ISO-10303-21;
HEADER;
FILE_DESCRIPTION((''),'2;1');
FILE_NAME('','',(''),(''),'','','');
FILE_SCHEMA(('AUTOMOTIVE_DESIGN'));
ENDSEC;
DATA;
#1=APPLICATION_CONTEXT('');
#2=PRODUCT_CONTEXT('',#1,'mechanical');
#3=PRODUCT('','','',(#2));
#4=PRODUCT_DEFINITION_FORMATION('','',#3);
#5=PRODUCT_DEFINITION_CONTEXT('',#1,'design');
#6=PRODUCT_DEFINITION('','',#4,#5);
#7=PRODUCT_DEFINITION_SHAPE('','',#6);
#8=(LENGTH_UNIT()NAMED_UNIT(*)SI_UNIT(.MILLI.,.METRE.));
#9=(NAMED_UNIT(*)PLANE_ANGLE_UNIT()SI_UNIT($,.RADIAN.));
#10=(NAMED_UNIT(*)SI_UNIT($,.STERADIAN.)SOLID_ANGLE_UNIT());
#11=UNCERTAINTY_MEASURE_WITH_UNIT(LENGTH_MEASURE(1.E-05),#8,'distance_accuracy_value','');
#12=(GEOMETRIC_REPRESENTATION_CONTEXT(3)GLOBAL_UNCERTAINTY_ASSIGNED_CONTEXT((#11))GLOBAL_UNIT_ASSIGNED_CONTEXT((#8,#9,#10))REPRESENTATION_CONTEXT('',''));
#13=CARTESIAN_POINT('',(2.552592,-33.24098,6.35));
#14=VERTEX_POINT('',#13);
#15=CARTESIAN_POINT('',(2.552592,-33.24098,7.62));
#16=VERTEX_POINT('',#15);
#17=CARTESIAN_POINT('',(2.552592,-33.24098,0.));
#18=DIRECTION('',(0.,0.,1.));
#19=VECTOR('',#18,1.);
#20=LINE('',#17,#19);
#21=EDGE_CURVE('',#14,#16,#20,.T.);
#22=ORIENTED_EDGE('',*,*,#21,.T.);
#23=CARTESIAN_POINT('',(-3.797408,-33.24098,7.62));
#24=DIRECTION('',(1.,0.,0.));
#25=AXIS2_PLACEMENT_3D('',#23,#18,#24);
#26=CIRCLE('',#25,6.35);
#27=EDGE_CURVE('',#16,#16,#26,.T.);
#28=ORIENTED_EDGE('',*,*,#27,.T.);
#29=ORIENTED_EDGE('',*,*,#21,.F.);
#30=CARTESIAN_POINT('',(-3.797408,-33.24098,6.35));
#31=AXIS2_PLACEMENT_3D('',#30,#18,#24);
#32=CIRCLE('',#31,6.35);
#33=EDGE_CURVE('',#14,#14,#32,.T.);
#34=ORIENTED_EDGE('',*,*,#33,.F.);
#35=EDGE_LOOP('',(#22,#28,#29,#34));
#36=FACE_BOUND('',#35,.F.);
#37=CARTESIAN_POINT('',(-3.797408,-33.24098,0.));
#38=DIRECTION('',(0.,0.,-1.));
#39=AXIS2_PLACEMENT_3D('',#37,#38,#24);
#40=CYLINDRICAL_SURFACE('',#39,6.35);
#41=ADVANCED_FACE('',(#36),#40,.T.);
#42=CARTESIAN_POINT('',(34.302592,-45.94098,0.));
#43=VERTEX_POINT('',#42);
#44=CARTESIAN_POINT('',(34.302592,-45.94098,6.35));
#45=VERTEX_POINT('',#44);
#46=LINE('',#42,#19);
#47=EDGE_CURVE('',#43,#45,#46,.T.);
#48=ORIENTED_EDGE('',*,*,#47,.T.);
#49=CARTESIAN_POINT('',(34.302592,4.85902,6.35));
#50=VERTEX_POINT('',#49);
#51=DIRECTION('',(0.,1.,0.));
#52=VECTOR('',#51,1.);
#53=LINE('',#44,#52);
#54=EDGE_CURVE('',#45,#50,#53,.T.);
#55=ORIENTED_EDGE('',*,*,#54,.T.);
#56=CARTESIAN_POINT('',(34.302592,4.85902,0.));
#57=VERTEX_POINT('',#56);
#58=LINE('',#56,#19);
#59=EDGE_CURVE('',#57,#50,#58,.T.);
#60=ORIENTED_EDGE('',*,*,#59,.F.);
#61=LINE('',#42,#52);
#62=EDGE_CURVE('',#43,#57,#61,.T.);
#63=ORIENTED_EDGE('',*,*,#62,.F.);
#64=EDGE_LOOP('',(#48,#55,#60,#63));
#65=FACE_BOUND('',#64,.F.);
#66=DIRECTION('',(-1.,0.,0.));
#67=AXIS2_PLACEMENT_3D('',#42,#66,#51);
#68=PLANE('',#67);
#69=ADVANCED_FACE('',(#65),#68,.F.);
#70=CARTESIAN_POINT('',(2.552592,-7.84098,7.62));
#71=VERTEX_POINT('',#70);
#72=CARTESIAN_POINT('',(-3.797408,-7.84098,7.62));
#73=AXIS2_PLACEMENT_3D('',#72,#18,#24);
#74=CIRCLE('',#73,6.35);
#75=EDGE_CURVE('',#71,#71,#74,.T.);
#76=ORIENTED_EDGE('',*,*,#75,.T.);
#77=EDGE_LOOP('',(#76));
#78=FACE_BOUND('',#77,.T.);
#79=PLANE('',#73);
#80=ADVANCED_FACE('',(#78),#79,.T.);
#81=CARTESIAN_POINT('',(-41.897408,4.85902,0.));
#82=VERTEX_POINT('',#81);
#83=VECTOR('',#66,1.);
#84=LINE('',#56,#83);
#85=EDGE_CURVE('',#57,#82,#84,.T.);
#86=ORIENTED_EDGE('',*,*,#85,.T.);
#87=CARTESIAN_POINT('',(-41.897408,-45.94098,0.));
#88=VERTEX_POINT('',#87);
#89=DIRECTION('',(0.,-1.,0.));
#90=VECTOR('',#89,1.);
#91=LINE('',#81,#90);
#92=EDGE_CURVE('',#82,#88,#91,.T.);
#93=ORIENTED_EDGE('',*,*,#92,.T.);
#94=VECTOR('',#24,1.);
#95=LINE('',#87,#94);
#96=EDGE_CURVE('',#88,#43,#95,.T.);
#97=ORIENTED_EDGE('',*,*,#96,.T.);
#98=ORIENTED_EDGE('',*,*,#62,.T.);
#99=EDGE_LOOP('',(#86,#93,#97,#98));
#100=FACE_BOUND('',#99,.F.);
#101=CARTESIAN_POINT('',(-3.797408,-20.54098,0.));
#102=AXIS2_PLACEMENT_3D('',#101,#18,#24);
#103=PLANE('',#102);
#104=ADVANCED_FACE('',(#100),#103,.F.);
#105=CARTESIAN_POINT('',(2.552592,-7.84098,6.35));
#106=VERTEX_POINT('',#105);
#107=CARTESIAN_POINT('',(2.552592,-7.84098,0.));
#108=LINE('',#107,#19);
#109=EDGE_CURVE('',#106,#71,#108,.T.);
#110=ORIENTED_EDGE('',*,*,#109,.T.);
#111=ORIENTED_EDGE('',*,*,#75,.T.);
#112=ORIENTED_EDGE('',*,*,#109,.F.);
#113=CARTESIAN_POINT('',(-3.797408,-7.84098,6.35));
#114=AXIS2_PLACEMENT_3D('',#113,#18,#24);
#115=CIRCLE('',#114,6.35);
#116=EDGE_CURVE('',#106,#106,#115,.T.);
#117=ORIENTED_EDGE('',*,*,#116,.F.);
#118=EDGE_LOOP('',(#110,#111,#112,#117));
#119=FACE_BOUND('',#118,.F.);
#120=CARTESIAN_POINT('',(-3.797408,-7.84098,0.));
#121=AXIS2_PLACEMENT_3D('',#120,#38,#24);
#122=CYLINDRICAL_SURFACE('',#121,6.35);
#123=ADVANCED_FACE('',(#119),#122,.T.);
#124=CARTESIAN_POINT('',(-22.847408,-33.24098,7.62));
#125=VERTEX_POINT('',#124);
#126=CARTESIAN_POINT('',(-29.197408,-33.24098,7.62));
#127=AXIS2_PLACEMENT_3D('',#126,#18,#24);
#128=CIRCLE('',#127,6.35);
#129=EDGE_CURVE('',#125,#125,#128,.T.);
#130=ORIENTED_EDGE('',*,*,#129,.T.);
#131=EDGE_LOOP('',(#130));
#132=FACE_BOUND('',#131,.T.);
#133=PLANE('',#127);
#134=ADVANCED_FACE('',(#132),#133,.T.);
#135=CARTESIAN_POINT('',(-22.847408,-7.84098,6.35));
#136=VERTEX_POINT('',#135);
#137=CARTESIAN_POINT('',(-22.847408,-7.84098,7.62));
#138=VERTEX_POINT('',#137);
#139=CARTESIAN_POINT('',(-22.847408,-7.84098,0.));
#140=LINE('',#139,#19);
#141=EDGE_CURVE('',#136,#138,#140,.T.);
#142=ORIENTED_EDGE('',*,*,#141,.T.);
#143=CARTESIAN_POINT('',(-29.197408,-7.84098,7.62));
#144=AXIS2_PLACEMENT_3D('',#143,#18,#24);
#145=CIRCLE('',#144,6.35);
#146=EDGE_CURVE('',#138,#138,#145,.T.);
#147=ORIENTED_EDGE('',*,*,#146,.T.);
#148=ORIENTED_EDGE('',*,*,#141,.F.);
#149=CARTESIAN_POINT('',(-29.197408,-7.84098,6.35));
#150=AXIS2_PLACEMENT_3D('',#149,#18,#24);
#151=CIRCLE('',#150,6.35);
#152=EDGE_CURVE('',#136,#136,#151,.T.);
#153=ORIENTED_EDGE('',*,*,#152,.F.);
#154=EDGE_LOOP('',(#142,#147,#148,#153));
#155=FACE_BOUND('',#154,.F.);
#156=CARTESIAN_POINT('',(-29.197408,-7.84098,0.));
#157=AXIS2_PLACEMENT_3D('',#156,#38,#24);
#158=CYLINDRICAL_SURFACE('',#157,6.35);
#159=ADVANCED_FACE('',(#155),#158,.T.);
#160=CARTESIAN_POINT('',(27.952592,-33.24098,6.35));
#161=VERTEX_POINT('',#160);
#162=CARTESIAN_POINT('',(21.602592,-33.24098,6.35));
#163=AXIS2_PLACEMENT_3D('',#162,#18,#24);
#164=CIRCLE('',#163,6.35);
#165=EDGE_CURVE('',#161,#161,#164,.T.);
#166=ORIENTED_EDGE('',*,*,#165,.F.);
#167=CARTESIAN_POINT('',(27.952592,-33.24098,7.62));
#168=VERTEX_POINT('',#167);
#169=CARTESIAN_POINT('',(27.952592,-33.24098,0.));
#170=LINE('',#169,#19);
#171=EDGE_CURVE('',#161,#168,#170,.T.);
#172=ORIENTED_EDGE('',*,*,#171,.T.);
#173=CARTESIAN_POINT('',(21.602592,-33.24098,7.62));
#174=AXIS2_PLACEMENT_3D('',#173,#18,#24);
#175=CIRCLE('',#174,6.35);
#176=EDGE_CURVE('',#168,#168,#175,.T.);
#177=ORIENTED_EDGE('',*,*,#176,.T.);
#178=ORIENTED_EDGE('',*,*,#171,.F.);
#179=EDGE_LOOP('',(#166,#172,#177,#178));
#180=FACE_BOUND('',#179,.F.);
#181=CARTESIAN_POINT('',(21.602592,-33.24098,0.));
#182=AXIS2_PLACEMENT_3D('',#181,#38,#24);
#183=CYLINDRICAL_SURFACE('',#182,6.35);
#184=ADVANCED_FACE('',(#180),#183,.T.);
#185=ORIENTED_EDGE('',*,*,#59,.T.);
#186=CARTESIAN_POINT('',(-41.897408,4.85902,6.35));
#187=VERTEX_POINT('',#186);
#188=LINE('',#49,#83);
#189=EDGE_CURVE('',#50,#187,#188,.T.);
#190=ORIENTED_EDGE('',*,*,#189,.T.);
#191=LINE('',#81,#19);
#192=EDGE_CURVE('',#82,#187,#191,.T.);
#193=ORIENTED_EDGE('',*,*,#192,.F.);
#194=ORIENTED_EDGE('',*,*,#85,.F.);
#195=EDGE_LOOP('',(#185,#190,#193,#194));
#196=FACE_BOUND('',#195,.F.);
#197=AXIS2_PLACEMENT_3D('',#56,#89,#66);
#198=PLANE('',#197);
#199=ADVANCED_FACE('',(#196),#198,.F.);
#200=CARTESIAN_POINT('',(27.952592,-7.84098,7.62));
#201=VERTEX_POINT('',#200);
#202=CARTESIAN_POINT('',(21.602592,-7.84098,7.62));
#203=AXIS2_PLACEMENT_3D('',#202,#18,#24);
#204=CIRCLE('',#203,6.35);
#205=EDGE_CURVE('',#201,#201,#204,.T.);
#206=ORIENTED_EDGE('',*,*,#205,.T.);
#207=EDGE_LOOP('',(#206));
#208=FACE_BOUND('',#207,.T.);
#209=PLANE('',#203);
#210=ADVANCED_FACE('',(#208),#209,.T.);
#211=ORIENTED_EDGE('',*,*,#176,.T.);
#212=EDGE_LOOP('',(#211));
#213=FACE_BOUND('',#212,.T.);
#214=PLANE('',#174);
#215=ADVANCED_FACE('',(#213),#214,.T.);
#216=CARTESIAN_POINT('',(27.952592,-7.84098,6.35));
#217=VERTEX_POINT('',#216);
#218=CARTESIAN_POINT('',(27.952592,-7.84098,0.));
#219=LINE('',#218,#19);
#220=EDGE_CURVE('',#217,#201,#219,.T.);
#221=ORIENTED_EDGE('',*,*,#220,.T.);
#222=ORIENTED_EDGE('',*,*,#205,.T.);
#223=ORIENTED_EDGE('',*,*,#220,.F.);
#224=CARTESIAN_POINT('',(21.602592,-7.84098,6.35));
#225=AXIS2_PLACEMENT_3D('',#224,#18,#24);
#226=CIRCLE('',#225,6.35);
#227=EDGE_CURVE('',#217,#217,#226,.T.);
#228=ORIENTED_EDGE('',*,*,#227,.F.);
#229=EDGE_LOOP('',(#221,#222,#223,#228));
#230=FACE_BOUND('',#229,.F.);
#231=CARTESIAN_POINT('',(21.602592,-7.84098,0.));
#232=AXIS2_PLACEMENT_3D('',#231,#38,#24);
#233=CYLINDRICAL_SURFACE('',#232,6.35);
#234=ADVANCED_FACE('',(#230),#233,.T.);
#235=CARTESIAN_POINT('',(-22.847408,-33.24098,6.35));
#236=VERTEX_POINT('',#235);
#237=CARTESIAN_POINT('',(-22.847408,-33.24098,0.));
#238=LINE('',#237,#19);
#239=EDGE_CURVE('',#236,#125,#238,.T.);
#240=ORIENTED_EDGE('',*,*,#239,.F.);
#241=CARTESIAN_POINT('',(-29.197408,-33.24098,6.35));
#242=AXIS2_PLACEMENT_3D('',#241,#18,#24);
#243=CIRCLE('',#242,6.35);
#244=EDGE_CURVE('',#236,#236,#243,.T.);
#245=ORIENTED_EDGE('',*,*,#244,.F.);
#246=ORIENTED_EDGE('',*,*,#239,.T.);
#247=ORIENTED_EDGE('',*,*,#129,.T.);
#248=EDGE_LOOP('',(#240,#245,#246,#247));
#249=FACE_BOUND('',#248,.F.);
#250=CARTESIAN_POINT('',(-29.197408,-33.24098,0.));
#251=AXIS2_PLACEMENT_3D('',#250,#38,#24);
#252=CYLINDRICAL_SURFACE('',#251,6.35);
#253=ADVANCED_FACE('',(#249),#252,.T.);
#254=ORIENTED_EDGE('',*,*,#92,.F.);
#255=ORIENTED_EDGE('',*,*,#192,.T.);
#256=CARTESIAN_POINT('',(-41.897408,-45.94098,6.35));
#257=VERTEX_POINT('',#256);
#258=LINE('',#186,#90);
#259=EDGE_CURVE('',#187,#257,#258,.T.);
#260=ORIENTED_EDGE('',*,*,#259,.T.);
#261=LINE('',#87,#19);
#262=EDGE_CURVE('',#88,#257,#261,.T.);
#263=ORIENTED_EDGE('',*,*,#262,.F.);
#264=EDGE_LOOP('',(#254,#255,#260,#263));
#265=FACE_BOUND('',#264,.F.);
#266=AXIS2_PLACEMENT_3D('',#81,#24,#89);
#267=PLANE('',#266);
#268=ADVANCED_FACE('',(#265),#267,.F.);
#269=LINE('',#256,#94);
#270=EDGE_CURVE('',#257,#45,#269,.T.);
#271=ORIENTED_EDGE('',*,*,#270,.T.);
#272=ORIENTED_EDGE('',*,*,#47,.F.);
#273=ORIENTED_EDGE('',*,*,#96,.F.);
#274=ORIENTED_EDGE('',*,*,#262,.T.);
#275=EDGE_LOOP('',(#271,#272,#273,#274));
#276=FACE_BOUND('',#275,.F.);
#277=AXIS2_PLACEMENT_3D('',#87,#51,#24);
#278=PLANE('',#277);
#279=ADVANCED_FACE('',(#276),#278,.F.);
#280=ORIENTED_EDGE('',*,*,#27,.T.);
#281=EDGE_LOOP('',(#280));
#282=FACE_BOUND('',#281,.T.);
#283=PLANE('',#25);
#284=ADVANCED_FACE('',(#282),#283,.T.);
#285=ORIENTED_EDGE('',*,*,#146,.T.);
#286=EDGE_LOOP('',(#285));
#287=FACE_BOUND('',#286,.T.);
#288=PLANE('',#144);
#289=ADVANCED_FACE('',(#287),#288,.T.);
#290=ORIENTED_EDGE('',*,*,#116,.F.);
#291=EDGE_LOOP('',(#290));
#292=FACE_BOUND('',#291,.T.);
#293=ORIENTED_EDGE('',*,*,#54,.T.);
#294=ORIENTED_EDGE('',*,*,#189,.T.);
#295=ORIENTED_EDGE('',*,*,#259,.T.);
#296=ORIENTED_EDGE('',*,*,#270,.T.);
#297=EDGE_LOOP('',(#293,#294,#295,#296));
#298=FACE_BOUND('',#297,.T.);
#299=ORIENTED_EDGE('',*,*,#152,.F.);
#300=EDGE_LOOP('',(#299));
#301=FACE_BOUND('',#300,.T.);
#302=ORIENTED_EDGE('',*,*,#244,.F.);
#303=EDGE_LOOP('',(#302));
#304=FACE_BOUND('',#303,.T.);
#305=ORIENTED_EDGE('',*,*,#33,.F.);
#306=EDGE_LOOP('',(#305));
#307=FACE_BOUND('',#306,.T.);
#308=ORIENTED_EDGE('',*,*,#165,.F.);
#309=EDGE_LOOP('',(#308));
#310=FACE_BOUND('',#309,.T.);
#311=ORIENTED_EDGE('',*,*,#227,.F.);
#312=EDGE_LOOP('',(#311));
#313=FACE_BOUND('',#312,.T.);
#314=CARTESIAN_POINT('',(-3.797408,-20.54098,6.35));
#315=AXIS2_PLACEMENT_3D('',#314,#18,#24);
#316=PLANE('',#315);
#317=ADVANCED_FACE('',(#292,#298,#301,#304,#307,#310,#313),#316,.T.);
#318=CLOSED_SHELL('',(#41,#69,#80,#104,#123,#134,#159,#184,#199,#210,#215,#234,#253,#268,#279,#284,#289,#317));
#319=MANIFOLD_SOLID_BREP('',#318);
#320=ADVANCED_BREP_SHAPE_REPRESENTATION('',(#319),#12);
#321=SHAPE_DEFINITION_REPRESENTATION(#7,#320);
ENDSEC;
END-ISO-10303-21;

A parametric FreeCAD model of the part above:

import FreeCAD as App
import Part
import Sketcher

V = App.Vector
Q = App.Units.Quantity

doc = App.newDocument("Part")
body = doc.addObject("PartDesign::Body", "Body")

sketch1 = body.newObject("Sketcher::SketchObject", "Sketch")
sketch1.AttachmentSupport = (doc.getObject("XY_Plane"), [""])
sketch1.MapMode = "FlatFace"
sketch1.addGeometry(Part.LineSegment(V(-41.897408, 4.85902, 0), V(-41.897408, -45.94098, 0)), False)
sketch1.addGeometry(Part.LineSegment(V(-41.897408, -45.94098, 0), V(34.302592, -45.94098, 0)), False)
sketch1.addGeometry(Part.LineSegment(V(34.302592, -45.94098, 0), V(34.302592, 4.85902, 0)), False)
sketch1.addGeometry(Part.LineSegment(V(34.302592, 4.85902, 0), V(-41.897408, 4.85902, 0)), False)
sketch1.addGeometry(Part.Circle(V(-29.197408, -33.24098, 0), V(0, 0, 1), 6.35), False)
sketch1.addGeometry(Part.Circle(V(-3.797408, -33.24098, 0), V(0, 0, 1), 6.35), False)
sketch1.addGeometry(Part.Circle(V(21.602592, -33.24098, 0), V(0, 0, 1), 6.35), False)
sketch1.addGeometry(Part.Circle(V(-29.197408, -7.84098, 0), V(0, 0, 1), 6.35), False)
sketch1.addGeometry(Part.Circle(V(-3.797408, -7.84098, 0), V(0, 0, 1), 6.35), False)
sketch1.addGeometry(Part.Circle(V(21.602592, -7.84098, 0), V(0, 0, 1), 6.35), False)
sketch1.addConstraint(Sketcher.Constraint("Coincident", 0, 2, 1, 1))
sketch1.addConstraint(Sketcher.Constraint("Coincident", 1, 2, 2, 1))
sketch1.addConstraint(Sketcher.Constraint("Coincident", 2, 2, 3, 1))
sketch1.addConstraint(Sketcher.Constraint("Coincident", 3, 2, 0, 1))
sketch1.addConstraint(Sketcher.Constraint("Vertical", 0))
sketch1.addConstraint(Sketcher.Constraint("Horizontal", 1))
sketch1.addConstraint(Sketcher.Constraint("Vertical", 2))
sketch1.addConstraint(Sketcher.Constraint("Horizontal", 3))
sketch1.addConstraint(Sketcher.Constraint("Equal", 4, 5))
sketch1.addConstraint(Sketcher.Constraint("Equal", 5, 6))
sketch1.addConstraint(Sketcher.Constraint("Equal", 6, 7))
sketch1.addConstraint(Sketcher.Constraint("Equal", 7, 8))
sketch1.addConstraint(Sketcher.Constraint("Equal", 8, 9))
sketch1.addConstraint(Sketcher.Constraint("Horizontal", 4, 3, 5, 3))
sketch1.addConstraint(Sketcher.Constraint("Horizontal", 5, 3, 6, 3))
sketch1.addConstraint(Sketcher.Constraint("Horizontal", 7, 3, 8, 3))
sketch1.addConstraint(Sketcher.Constraint("Horizontal", 8, 3, 9, 3))
sketch1.addConstraint(Sketcher.Constraint("Vertical", 4, 3, 7, 3))
sketch1.addConstraint(Sketcher.Constraint("Vertical", 5, 3, 8, 3))
sketch1.addConstraint(Sketcher.Constraint("Vertical", 6, 3, 9, 3))
sketch1.addConstraint(Sketcher.Constraint("Diameter", 4, Q("0.5 in")))
sketch1.addConstraint(Sketcher.Constraint("DistanceX", 1, 1, 1, 2, Q("3 in")))
sketch1.addConstraint(Sketcher.Constraint("DistanceY", 0, 2, 0, 1, Q("2 in")))
sketch1.addConstraint(Sketcher.Constraint("DistanceX", 4, 3, 5, 3, Q("1 in")))
sketch1.addConstraint(Sketcher.Constraint("DistanceX", 5, 3, 6, 3, Q("1 in")))
sketch1.addConstraint(Sketcher.Constraint("DistanceY", 4, 3, 7, 3, Q("1 in")))
sketch1.addConstraint(Sketcher.Constraint("DistanceX", 0, 2, 4, 3, Q("0.5 in")))
sketch1.addConstraint(Sketcher.Constraint("DistanceY", 0, 2, 4, 3, Q("0.5 in")))
sketch1.addConstraint(Sketcher.Constraint("DistanceY", 4, 3, -1, 1, Q("1.3087 in")))
sketch1.addConstraint(Sketcher.Constraint("DistanceX", -1, 1, 1, 2, Q("34.302592 mm")))
pad1 = body.newObject("PartDesign::Pad", "Pad")
pad1.Profile = sketch1
pad1.Length = Q("0.25 in")

sketch2 = body.newObject("Sketcher::SketchObject", "Sketch001")
sketch2.AttachmentSupport = (doc.getObject("XY_Plane"), [""])
sketch2.MapMode = "FlatFace"
sketch2.addGeometry(Part.Circle(V(21.602592, -7.84098, 0), V(0, 0, 1), 6.35), False)
sketch2.addGeometry(Part.Circle(V(-3.797408, -7.84098, 0), V(0, 0, 1), 6.35), False)
sketch2.addGeometry(Part.Circle(V(-29.197408, -7.84098, 0), V(0, 0, 1), 6.35), False)
sketch2.addGeometry(Part.Circle(V(-29.197408, -33.24098, 0), V(0, 0, 1), 6.35), False)
sketch2.addGeometry(Part.Circle(V(-3.797408, -33.24098, 0), V(0, 0, 1), 6.35), False)
sketch2.addGeometry(Part.Circle(V(21.602592, -33.24098, 0), V(0, 0, 1), 6.35), False)
sketch2.addConstraint(Sketcher.Constraint("Equal", 0, 1))
sketch2.addConstraint(Sketcher.Constraint("Equal", 1, 2))
sketch2.addConstraint(Sketcher.Constraint("Equal", 2, 3))
sketch2.addConstraint(Sketcher.Constraint("Equal", 3, 4))
sketch2.addConstraint(Sketcher.Constraint("Equal", 4, 5))
sketch2.addConstraint(Sketcher.Constraint("Horizontal", 0, 3, 1, 3))
sketch2.addConstraint(Sketcher.Constraint("Horizontal", 1, 3, 2, 3))
sketch2.addConstraint(Sketcher.Constraint("Horizontal", 3, 3, 4, 3))
sketch2.addConstraint(Sketcher.Constraint("Horizontal", 4, 3, 5, 3))
sketch2.addConstraint(Sketcher.Constraint("Vertical", 2, 3, 3, 3))
sketch2.addConstraint(Sketcher.Constraint("Vertical", 1, 3, 4, 3))
sketch2.addConstraint(Sketcher.Constraint("Vertical", 0, 3, 5, 3))
sketch2.addConstraint(Sketcher.Constraint("Diameter", 0, Q("0.5 in")))
sketch2.addConstraint(Sketcher.Constraint("DistanceX", 1, 3, 0, 3, Q("1 in")))
sketch2.addConstraint(Sketcher.Constraint("DistanceX", 2, 3, 1, 3, Q("1 in")))
sketch2.addConstraint(Sketcher.Constraint("DistanceY", 3, 3, 2, 3, Q("1 in")))
sketch2.addConstraint(Sketcher.Constraint("DistanceY", 0, 3, -1, 1, Q("0.3087 in")))
sketch2.addConstraint(Sketcher.Constraint("DistanceX", -1, 1, 0, 3, Q("21.602592 mm")))
pad2 = body.newObject("PartDesign::Pad", "Pad001")
pad2.Profile = sketch2
pad2.Length = Q("0.3 in")

doc.recompute()
